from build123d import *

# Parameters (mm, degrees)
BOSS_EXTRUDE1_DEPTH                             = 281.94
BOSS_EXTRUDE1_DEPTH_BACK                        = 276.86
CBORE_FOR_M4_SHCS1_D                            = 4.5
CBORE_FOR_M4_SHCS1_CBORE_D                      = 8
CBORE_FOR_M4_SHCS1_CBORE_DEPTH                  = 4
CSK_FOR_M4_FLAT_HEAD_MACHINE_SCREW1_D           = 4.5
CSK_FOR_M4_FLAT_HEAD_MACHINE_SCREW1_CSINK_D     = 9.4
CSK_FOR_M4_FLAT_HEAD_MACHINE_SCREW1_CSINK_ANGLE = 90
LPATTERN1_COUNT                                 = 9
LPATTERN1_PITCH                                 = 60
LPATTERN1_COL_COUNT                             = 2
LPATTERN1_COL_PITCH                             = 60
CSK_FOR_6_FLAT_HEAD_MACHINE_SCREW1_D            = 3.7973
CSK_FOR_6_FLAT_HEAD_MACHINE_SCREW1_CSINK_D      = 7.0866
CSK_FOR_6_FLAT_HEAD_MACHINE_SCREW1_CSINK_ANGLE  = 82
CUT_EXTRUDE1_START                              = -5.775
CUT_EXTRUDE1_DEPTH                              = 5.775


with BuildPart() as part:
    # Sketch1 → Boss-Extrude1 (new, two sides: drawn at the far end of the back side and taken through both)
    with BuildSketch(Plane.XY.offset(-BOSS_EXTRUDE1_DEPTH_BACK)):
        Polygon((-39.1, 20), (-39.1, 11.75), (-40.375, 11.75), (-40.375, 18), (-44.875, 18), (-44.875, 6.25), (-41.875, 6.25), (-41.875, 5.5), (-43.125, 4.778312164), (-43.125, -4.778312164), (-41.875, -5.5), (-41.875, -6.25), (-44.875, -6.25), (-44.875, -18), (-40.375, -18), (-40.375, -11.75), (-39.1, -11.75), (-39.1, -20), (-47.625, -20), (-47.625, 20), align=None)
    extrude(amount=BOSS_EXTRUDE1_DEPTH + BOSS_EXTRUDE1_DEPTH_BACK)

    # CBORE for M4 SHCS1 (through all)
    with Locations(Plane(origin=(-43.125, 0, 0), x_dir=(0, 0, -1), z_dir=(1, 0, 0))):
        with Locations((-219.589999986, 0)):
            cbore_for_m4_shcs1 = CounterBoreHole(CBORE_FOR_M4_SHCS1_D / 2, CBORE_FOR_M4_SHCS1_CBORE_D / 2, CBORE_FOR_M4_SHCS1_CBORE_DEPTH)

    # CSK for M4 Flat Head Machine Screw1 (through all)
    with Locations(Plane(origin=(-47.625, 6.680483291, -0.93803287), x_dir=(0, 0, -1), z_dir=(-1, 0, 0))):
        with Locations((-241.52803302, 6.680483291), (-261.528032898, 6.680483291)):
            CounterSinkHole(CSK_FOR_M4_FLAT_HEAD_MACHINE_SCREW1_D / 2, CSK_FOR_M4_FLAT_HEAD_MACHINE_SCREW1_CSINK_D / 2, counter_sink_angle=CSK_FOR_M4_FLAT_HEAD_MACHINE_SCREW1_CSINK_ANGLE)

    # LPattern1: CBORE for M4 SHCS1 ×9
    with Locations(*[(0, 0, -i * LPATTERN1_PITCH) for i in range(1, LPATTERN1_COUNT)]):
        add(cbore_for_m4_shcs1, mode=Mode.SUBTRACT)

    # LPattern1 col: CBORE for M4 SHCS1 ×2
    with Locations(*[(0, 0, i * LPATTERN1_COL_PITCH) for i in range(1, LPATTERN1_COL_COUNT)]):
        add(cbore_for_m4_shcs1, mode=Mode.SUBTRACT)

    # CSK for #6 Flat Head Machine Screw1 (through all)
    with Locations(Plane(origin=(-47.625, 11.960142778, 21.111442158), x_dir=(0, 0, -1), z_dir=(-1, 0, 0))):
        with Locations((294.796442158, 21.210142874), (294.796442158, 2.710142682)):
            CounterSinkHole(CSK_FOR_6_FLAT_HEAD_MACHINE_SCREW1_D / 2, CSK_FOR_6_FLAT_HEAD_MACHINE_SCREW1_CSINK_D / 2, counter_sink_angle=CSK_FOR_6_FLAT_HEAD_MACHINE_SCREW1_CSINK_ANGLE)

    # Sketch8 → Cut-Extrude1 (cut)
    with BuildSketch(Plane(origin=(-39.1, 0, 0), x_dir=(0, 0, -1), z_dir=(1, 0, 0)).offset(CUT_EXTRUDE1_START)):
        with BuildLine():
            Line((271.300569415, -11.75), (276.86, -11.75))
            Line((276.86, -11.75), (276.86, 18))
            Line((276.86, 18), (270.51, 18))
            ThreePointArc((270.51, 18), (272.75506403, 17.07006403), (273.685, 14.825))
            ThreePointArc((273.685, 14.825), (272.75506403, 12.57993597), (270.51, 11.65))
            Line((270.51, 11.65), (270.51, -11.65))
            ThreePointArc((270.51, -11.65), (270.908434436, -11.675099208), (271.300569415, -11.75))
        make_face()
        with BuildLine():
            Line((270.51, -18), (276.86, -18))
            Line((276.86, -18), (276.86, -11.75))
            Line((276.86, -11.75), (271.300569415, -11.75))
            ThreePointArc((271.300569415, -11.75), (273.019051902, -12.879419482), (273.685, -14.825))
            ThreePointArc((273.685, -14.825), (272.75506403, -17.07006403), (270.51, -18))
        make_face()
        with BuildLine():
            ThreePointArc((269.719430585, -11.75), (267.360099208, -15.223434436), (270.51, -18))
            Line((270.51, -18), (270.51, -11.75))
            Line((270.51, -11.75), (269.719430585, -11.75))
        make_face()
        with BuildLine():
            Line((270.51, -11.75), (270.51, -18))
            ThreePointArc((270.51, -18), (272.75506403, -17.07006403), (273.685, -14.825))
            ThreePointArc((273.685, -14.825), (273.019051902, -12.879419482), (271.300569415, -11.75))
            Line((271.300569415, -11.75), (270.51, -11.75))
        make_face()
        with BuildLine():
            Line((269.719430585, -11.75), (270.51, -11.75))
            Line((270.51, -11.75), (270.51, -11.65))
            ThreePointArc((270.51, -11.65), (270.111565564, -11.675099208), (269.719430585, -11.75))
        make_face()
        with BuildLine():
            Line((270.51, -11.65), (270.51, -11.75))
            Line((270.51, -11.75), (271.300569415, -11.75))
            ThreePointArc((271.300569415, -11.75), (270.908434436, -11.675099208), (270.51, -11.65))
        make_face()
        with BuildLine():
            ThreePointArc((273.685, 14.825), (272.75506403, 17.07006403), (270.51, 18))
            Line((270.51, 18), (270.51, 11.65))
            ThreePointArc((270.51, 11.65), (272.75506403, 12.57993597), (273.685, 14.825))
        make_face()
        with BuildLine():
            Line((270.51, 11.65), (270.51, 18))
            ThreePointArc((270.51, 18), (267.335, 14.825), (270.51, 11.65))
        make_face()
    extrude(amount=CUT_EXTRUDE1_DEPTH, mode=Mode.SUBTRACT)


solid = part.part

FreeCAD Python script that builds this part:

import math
import FreeCAD as App
import Part
import Sketcher
from FreeCAD import Vector
Q = App.Units.Quantity

doc = App.newDocument("Part")
body = doc.addObject("PartDesign::Body", "Body")

# Sketch on XY plane
sketch1 = body.newObject("Sketcher::SketchObject", "Sketch")
sketch1.AttachmentSupport = (doc.getObject("XY_Plane"), [""])
sketch1.MapMode = "FlatFace"
sketch1.addGeometry(Part.LineSegment(Vector(-39.1, 11.8, 0), Vector(-39.1, 20, 0)), False)
sketch1.addGeometry(Part.LineSegment(Vector(-39.1, 20, 0), Vector(-47.6, 20, 0)), False)
sketch1.addGeometry(Part.LineSegment(Vector(-47.6, 20, 0), Vector(-47.6, -20, 0)), False)
sketch1.addGeometry(Part.LineSegment(Vector(-47.6, -20, 0), Vector(-39.1, -20, 0)), False)
sketch1.addGeometry(Part.LineSegment(Vector(-39.1, -20, 0), Vector(-39.1, -11.8, 0)), False)
sketch1.addGeometry(Part.LineSegment(Vector(-39.1, -11.8, 0), Vector(-40.4, -11.8, 0)), False)
sketch1.addGeometry(Part.LineSegment(Vector(-40.4, -11.8, 0), Vector(-40.4, -18, 0)), False)
sketch1.addGeometry(Part.LineSegment(Vector(-40.4, -18, 0), Vector(-44.9, -18, 0)), False)
sketch1.addGeometry(Part.LineSegment(Vector(-44.9, -18, 0), Vector(-44.9, -6.2, 0)), False)
sketch1.addGeometry(Part.LineSegment(Vector(-44.9, -6.2, 0), Vector(-41.9, -6.2, 0)), False)
sketch1.addGeometry(Part.LineSegment(Vector(-41.9, -6.2, 0), Vector(-41.9, -5.5, 0)), False)
sketch1.addGeometry(Part.LineSegment(Vector(-41.9, -5.5, 0), Vector(-43.1, -4.8, 0)), False)
sketch1.addGeometry(Part.LineSegment(Vector(-43.1, -4.8, 0), Vector(-43.1, 4.8, 0)), False)
sketch1.addGeometry(Part.LineSegment(Vector(-43.1, 4.8, 0), Vector(-41.9, 5.5, 0)), False)
sketch1.addGeometry(Part.LineSegment(Vector(-41.9, 5.5, 0), Vector(-41.9, 6.2, 0)), False)
sketch1.addGeometry(Part.LineSegment(Vector(-41.9, 6.2, 0), Vector(-44.9, 6.2, 0)), False)
sketch1.addGeometry(Part.LineSegment(Vector(-44.9, 6.2, 0), Vector(-44.9, 18, 0)), False)
sketch1.addGeometry(Part.LineSegment(Vector(-44.9, 18, 0), Vector(-40.4, 18, 0)), False)
sketch1.addGeometry(Part.LineSegment(Vector(-40.4, 18, 0), Vector(-40.4, 11.8, 0)), False)
sketch1.addGeometry(Part.LineSegment(Vector(-40.4, 11.8, 0), Vector(-39.1, 11.8, 0)), False)
sketch1.addConstraint(Sketcher.Constraint("Coincident", 0, 2, 1, 1))
sketch1.addConstraint(Sketcher.Constraint("Coincident", 1, 2, 2, 1))
sketch1.addConstraint(Sketcher.Constraint("Coincident", 2, 2, 3, 1))
sketch1.addConstraint(Sketcher.Constraint("Coincident", 3, 2, 4, 1))
sketch1.addConstraint(Sketcher.Constraint("Coincident", 4, 2, 5, 1))
sketch1.addConstraint(Sketcher.Constraint("Coincident", 5, 2, 6, 1))
sketch1.addConstraint(Sketcher.Constraint("Coincident", 6, 2, 7, 1))
sketch1.addConstraint(Sketcher.Constraint("Coincident", 7, 2, 8, 1))
sketch1.addConstraint(Sketcher.Constraint("Coincident", 8, 2, 9, 1))
sketch1.addConstraint(Sketcher.Constraint("Coincident", 9, 2, 10, 1))
sketch1.addConstraint(Sketcher.Constraint("Coincident", 10, 2, 11, 1))
sketch1.addConstraint(Sketcher.Constraint("Coincident", 11, 2, 12, 1))
sketch1.addConstraint(Sketcher.Constraint("Coincident", 12, 2, 13, 1))
sketch1.addConstraint(Sketcher.Constraint("Coincident", 13, 2, 14, 1))
sketch1.addConstraint(Sketcher.Constraint("Coincident", 14, 2, 15, 1))
sketch1.addConstraint(Sketcher.Constraint("Coincident", 15, 2, 16, 1))
sketch1.addConstraint(Sketcher.Constraint("Coincident", 16, 2, 17, 1))
sketch1.addConstraint(Sketcher.Constraint("Coincident", 17, 2, 18, 1))
sketch1.addConstraint(Sketcher.Constraint("Coincident", 18, 2, 19, 1))
sketch1.addConstraint(Sketcher.Constraint("Coincident", 19, 2, 0, 1))
sketch1.addConstraint(Sketcher.Constraint("Vertical", 0))
sketch1.addConstraint(Sketcher.Constraint("Horizontal", 1))
sketch1.addConstraint(Sketcher.Constraint("Vertical", 2))
sketch1.addConstraint(Sketcher.Constraint("Horizontal", 3))
sketch1.addConstraint(Sketcher.Constraint("Vertical", 4))
sketch1.addConstraint(Sketcher.Constraint("Horizontal", 5))
sketch1.addConstraint(Sketcher.Constraint("Vertical", 6))
sketch1.addConstraint(Sketcher.Constraint("Horizontal", 7))
sketch1.addConstraint(Sketcher.Constraint("Vertical", 8))
sketch1.addConstraint(Sketcher.Constraint("Horizontal", 9))
sketch1.addConstraint(Sketcher.Constraint("Vertical", 10))
sketch1.addConstraint(Sketcher.Constraint("Vertical", 12))
sketch1.addConstraint(Sketcher.Constraint("Vertical", 14))
sketch1.addConstraint(Sketcher.Constraint("Horizontal", 15))
sketch1.addConstraint(Sketcher.Constraint("Vertical", 16))
sketch1.addConstraint(Sketcher.Constraint("Horizontal", 17))
sketch1.addConstraint(Sketcher.Constraint("Vertical", 18))
sketch1.addConstraint(Sketcher.Constraint("Horizontal", 19))
sketch1.addConstraint(Sketcher.Constraint("Symmetric", 0, 2, 3, 2, -1))
sketch1.addConstraint(Sketcher.Constraint("Symmetric", 10, 2, 13, 2, -1))
sketch1.addConstraint(Sketcher.Constraint("Symmetric", 8, 2, 15, 2, -1))
sketch1.addConstraint(Sketcher.Constraint("Symmetric", 6, 2, 17, 2, -1))
sketch1.addConstraint(Sketcher.Constraint("Equal", 0, 4))
sketch1.addConstraint(Sketcher.Constraint("Equal", 11, 13))
sketch1.addConstraint(Sketcher.Constraint("DistanceX", 9, 1, 9, 2, 3.0))
sketch1.addConstraint(Sketcher.Constraint("DistanceY", 2, 2, 2, 1, 40.0))
sketch1.addConstraint(Sketcher.Constraint("Angle", 11, Q("150 deg")))
sketch1.addConstraint(Sketcher.Constraint("DistanceX", 7, 2, 7, 1, 4.5))
sketch1.addConstraint(Sketcher.Constraint("DistanceY", 6, 2, -1, 1, 18.0))
sketch1.addConstraint(Sketcher.Constraint("DistanceY", 10, 2, 13, 2, 11.0))
sketch1.addConstraint(Sketcher.Constraint("DistanceY", 0, 1, 0, 2, 8.25))
sketch1.addConstraint(Sketcher.Constraint("DistanceY", 8, 1, 8, 2, 11.75))
sketch1.addConstraint(Sketcher.Constraint("DistanceX", 0, 2, -1, 1, 39.1))
sketch1.addConstraint(Sketcher.Constraint("DistanceX", 1, 2, 1, 1, 8.525))
sketch1.addConstraint(Sketcher.Constraint("DistanceX", 5, 2, 5, 1, 1.275))
sketch1.addConstraint(Sketcher.Constraint("DistanceX", 11, 2, 10, 2, 1.25))
pad1 = body.newObject("PartDesign::Pad", "Pad")
pad1.Profile = sketch1
pad1.Type = "TwoLengths"
pad1.Length = 281.94
pad1.Length2 = 276.86

# Sketch on YZ plane
sketch2 = body.newObject("Sketcher::SketchObject", "Sketch001")
sketch2.AttachmentSupport = (doc.getObject("YZ_Plane"), [""])
sketch2.MapMode = "FlatFace"
sketch2.AttachmentOffset = App.Placement(Vector(0, 0, -43.125), App.Rotation())
sketch2.addGeometry(Part.Circle(Vector(0, 219.6, 0), Vector(0, 0, 1), 2.2), False)
sketch2.addConstraint(Sketcher.Constraint("PointOnObject", 0, 3, -2))
sketch2.addConstraint(Sketcher.Constraint("Diameter", 0, 4.5))
sketch2.addConstraint(Sketcher.Constraint("DistanceY", -1, 1, 0, 3, 219.59))
doc.recompute()
hole = body.newObject("PartDesign::Hole", "Hole")
hole.Profile = sketch2
hole.ThreadType = "None"
hole.Diameter = 4.5
hole.DepthType = "ThroughAll"
hole.HoleCutType = "Counterbore"
hole.HoleCutDiameter = 8
hole.HoleCutDepth = 4

# Sketch on YZ plane
sketch3 = body.newObject("Sketcher::SketchObject", "Sketch002")
sketch3.AttachmentSupport = (doc.getObject("YZ_Plane"), [""])
sketch3.MapMode = "FlatFace"
sketch3.AttachmentOffset = App.Placement(Vector(0, 0, -47.625), App.Rotation())
sketch3.addGeometry(Part.Circle(Vector(0, 240.6, 0), Vector(0, 0, 1), 2.2), False)
sketch3.addGeometry(Part.Circle(Vector(0, 260.6, 0), Vector(0, 0, 1), 2.2), False)
sketch3.addConstraint(Sketcher.Constraint("Equal", 0, 1))
sketch3.addConstraint(Sketcher.Constraint("PointOnObject", 0, 3, -2))
sketch3.addConstraint(Sketcher.Constraint("PointOnObject", 1, 3, -2))
sketch3.addConstraint(Sketcher.Constraint("Diameter", 0, 4.5))
sketch3.addConstraint(Sketcher.Constraint("DistanceY", 0, 3, 1, 3, 20.0))
sketch3.addConstraint(Sketcher.Constraint("DistanceY", -1, 1, 0, 3, 240.59))
doc.recompute()
hole2 = body.newObject("PartDesign::Hole", "Hole001")
hole2.Profile = sketch3
hole2.ThreadType = "None"
hole2.Diameter = 4.5
hole2.DepthType = "ThroughAll"
hole2.HoleCutType = "Countersink"
hole2.HoleCutDiameter = 9.4
hole2.HoleCutCountersinkAngle = 90
hole2.Reversed = True
doc.recompute()

linearpattern = body.newObject("PartDesign::LinearPattern", "LinearPattern")
linearpattern.Originals = [hole]
linearpattern.Direction = (doc.getObject("Z_Axis"), [""])
linearpattern.Mode = "offset"
linearpattern.Offset = 60
linearpattern.Occurrences = 9
linearpattern.Reversed = True
body.Tip = linearpattern
doc.recompute()

linearpattern2 = body.newObject("PartDesign::LinearPattern", "LinearPattern001")
linearpattern2.Originals = [hole]
linearpattern2.Direction = (doc.getObject("Z_Axis"), [""])
linearpattern2.Mode = "offset"
linearpattern2.Offset = 60
linearpattern2.Occurrences = 2
body.Tip = linearpattern2

# Sketch on YZ plane
sketch4 = body.newObject("Sketcher::SketchObject", "Sketch003")
sketch4.AttachmentSupport = (doc.getObject("YZ_Plane"), [""])
sketch4.MapMode = "FlatFace"
sketch4.AttachmentOffset = App.Placement(Vector(0, 0, -47.625), App.Rotation())
sketch4.addGeometry(Part.Circle(Vector(-9.3, -273.7, 0), Vector(0, 0, 1), 1.9), False)
sketch4.addGeometry(Part.Circle(Vector(9.3, -273.7, 0), Vector(0, 0, 1), 1.9), False)
sketch4.addConstraint(Sketcher.Constraint("Equal", 0, 1))
sketch4.addConstraint(Sketcher.Constraint("Symmetric", 0, 3, 1, 3, -2))
sketch4.addConstraint(Sketcher.Constraint("Diameter", 0, 3.7973))
sketch4.addConstraint(Sketcher.Constraint("DistanceX", 0, 3, 1, 3, 18.5))
sketch4.addConstraint(Sketcher.Constraint("DistanceY", 0, 3, -1, 1, 273.685))
doc.recompute()
hole3 = body.newObject("PartDesign::Hole", "Hole002")
hole3.Profile = sketch4
hole3.ThreadType = "None"
hole3.Diameter = 3.7973
hole3.DepthType = "ThroughAll"
hole3.HoleCutType = "Countersink"
hole3.HoleCutDiameter = 7.0866
hole3.HoleCutCountersinkAngle = 82
hole3.Reversed = True

# Sketch on YZ plane
sketch5 = body.newObject("Sketcher::SketchObject", "Sketch004")
sketch5.AttachmentSupport = (doc.getObject("YZ_Plane"), [""])
sketch5.MapMode = "FlatFace"
sketch5.AttachmentOffset = App.Placement(Vector(0, 0, -44.875), App.Rotation())
sketch5.addGeometry(Part.ArcOfCircle(Part.Circle(Vector(-14.8, -270.5, 0), Vector(0, 0, 1), 3.2), math.radians(14), math.radians(180)), False)
sketch5.addGeometry(Part.LineSegment(Vector(-18, -270.5, 0), Vector(-18, -276.9, 0)), False)
sketch5.addGeometry(Part.LineSegment(Vector(-18, -276.9, 0), Vector(18, -276.9, 0)), False)
sketch5.addGeometry(Part.LineSegment(Vector(18, -276.9, 0), Vector(18, -270.5, 0)), False)
sketch5.addGeometry(Part.ArcOfCircle(Part.Circle(Vector(14.8, -270.5, 0), Vector(0, 0, 1), 3.2), math.radians(0), math.radians(180)), False)
sketch5.addGeometry(Part.LineSegment(Vector(11.7, -270.5, 0), Vector(-11.7, -270.5, 0)), False)
sketch5.addGeometry(Part.ArcOfCircle(Part.Circle(Vector(-14.8, -270.5, 0), Vector(0, 0, 1), 3.2), math.radians(0), math.radians(14.42)), False)
sketch5.addConstraint(Sketcher.Constraint("Tangent", 0, 2, 1, 1))
sketch5.addConstraint(Sketcher.Constraint("Coincident", 1, 2, 2, 1))
sketch5.addConstraint(Sketcher.Constraint("Coincident", 2, 2, 3, 1))
sketch5.addConstraint(Sketcher.Constraint("Tangent", 3, 2, 4, 1))
sketch5.addConstraint(Sketcher.Constraint("Coincident", 4, 2, 5, 1))
sketch5.addConstraint(Sketcher.Constraint("Coincident", 5, 2, 6, 1))
sketch5.addConstraint(Sketcher.Constraint("Tangent", 6, 2, 0, 1))
sketch5.addConstraint(Sketcher.Constraint("Vertical", 1))
sketch5.addConstraint(Sketcher.Constraint("Horizontal", 2))
sketch5.addConstraint(Sketcher.Constraint("Vertical", 3))
sketch5.addConstraint(Sketcher.Constraint("Horizontal", 5))
sketch5.addConstraint(Sketcher.Constraint("Equal", 0, 4))
sketch5.addConstraint(Sketcher.Constraint("Equal", 4, 6))
sketch5.addConstraint(Sketcher.Constraint("Symmetric", 0, 3, 4, 3, -2))
sketch5.addConstraint(Sketcher.Constraint("Horizontal", 3, 2, 4, 2))
sketch5.addConstraint(Sketcher.Constraint("DistanceX", 2, 1, 2, 2, 36.0))
sketch5.addConstraint(Sketcher.Constraint("DistanceX", 5, 2, 5, 1, 23.3))
sketch5.addConstraint(Sketcher.Constraint("DistanceY", 1, 2, 1, 1, 6.35))
sketch5.addConstraint(Sketcher.Constraint("DistanceX", 6, 2, 5, 2, 0.1))
sketch5.addConstraint(Sketcher.Constraint("DistanceY", 0, 3, -1, 1, 270.51))
pocket1 = body.newObject("PartDesign::Pocket", "Pocket")
pocket1.Profile = sketch5
pocket1.Length = 5.775
pocket1.Reversed = True

doc.recompute()
